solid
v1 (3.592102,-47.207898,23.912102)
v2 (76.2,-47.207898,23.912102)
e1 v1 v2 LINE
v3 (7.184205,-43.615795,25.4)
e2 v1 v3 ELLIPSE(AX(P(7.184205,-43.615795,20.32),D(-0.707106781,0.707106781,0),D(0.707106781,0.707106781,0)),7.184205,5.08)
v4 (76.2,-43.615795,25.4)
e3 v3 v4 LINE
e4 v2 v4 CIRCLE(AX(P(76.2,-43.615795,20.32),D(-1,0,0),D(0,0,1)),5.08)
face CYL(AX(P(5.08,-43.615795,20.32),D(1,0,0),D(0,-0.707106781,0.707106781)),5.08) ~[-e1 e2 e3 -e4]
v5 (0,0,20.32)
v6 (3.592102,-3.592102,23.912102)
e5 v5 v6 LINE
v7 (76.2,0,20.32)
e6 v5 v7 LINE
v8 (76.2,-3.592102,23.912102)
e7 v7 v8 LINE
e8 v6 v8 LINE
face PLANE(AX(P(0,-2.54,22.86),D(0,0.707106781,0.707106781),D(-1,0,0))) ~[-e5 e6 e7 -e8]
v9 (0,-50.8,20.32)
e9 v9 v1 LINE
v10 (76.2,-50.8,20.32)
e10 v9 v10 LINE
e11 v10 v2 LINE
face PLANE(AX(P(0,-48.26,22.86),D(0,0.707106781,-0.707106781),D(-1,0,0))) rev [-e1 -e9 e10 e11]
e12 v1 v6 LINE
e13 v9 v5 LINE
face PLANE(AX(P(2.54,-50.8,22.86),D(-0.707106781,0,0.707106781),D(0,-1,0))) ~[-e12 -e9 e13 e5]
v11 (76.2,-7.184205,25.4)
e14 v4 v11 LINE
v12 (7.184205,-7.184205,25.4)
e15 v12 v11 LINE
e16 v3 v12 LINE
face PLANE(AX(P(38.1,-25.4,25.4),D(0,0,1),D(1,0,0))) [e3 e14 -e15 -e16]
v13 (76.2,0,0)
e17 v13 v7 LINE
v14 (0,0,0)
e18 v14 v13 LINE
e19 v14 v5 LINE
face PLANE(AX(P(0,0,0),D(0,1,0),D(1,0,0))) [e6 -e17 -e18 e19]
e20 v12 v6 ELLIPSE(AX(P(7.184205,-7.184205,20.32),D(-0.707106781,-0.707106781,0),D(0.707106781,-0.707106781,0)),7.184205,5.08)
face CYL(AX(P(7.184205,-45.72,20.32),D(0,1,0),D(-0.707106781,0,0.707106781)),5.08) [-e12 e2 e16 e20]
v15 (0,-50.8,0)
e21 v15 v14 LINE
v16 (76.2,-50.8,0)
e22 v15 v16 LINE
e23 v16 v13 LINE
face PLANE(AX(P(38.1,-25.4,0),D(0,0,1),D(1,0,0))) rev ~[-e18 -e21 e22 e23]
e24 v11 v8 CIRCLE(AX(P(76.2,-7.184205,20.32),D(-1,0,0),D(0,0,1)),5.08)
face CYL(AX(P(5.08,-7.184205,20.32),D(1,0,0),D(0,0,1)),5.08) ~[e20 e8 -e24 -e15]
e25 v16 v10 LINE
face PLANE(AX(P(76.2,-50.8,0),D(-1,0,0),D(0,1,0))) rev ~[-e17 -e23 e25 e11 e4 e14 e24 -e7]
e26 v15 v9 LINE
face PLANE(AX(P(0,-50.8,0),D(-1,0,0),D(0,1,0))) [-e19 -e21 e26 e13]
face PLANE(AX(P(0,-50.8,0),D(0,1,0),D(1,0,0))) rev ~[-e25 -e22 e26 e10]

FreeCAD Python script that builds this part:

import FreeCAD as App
import Part
import Sketcher
Q = App.Units.Quantity


def edges_at(feature, points):
    """Names of the edges that pass closest to the given points."""
    edges = feature.Shape.Edges
    near = lambda p: min(range(len(edges)), key=lambda i: edges[i].distToShape(Part.Vertex(*p))[0])
    return sorted({f"Edge{near(p) + 1}" for p in points})


def add_polygon(sketch, points):
    """Adds a closed chain of lines whose ends are joined by coincident constraints."""
    first, n = sketch.GeometryCount, len(points)
    for a, b in zip(points, points[1:] + points[:1]):
        sketch.addGeometry(Part.LineSegment(App.Vector(*a, 0), App.Vector(*b, 0)), False)
    for i in range(n):
        sketch.addConstraint(Sketcher.Constraint("Coincident", first + i, 2, first + (i + 1) % n, 1))

doc = App.newDocument("Part")
params = doc.addObject("Spreadsheet::Sheet", "Params")
for row, (alias, value) in enumerate([
    ("sketch1_width", "3 in"),
    ("sketch1_height", "2 in"),
    ("pad1_length", "1 in"),
    ("chamfer_size", "0.2 in"),
    ("fillet_radius", "0.2 in"),
], start=1):
    params.set(f"A{row}", alias)
    params.set(f"B{row}", "=" + value)
    params.setAlias(f"B{row}", alias)

body = doc.addObject("PartDesign::Body", "Body")

sketch1 = body.newObject("Sketcher::SketchObject", "Sketch")
sketch1.AttachmentSupport = (doc.getObject("XY_Plane"), [""])
sketch1.MapMode = "FlatFace"
add_polygon(sketch1, [(0, 0), (0, -51), (76, -51), (76, 0)])
sketch1.addConstraint([
    Sketcher.Constraint("Vertical", 0),
    Sketcher.Constraint("Horizontal", 1),
    Sketcher.Constraint("Vertical", 2),
    Sketcher.Constraint("Horizontal", 3),
    Sketcher.Constraint("Coincident", 3, 2, -1, 1),
    Sketcher.Constraint("DistanceX", 1, 1, 1, 2, Q("3 in")),
    Sketcher.Constraint("DistanceY", 0, 2, 0, 1, Q("2 in")),
])
sketch1.setExpression("Constraints[9]", "Params.sketch1_width")
sketch1.setExpression("Constraints[10]", "Params.sketch1_height")
pad1 = body.newObject("PartDesign::Pad", "Pad")
pad1.Profile = sketch1
pad1.setExpression("Length", "Params.pad1_length")
doc.recompute()

chamfer = body.newObject("PartDesign::Chamfer", "Chamfer")
chamfer.Base = (pad1, edges_at(pad1, [(38.1, -50.8, 25.4), (0, -25.4, 25.4), (38.1, 0, 25.4)]))
chamfer.setExpression("Size", "Params.chamfer_size")
doc.recompute()

fillet = body.newObject("PartDesign::Fillet", "Fillet")
fillet.Base = (chamfer, edges_at(chamfer, [(40.64, -5.08, 25.4), (5.08, -25.4, 25.4), (40.64, -45.72, 25.4)]))
fillet.setExpression("Radius", "Params.fillet_radius")

doc.recompute()
